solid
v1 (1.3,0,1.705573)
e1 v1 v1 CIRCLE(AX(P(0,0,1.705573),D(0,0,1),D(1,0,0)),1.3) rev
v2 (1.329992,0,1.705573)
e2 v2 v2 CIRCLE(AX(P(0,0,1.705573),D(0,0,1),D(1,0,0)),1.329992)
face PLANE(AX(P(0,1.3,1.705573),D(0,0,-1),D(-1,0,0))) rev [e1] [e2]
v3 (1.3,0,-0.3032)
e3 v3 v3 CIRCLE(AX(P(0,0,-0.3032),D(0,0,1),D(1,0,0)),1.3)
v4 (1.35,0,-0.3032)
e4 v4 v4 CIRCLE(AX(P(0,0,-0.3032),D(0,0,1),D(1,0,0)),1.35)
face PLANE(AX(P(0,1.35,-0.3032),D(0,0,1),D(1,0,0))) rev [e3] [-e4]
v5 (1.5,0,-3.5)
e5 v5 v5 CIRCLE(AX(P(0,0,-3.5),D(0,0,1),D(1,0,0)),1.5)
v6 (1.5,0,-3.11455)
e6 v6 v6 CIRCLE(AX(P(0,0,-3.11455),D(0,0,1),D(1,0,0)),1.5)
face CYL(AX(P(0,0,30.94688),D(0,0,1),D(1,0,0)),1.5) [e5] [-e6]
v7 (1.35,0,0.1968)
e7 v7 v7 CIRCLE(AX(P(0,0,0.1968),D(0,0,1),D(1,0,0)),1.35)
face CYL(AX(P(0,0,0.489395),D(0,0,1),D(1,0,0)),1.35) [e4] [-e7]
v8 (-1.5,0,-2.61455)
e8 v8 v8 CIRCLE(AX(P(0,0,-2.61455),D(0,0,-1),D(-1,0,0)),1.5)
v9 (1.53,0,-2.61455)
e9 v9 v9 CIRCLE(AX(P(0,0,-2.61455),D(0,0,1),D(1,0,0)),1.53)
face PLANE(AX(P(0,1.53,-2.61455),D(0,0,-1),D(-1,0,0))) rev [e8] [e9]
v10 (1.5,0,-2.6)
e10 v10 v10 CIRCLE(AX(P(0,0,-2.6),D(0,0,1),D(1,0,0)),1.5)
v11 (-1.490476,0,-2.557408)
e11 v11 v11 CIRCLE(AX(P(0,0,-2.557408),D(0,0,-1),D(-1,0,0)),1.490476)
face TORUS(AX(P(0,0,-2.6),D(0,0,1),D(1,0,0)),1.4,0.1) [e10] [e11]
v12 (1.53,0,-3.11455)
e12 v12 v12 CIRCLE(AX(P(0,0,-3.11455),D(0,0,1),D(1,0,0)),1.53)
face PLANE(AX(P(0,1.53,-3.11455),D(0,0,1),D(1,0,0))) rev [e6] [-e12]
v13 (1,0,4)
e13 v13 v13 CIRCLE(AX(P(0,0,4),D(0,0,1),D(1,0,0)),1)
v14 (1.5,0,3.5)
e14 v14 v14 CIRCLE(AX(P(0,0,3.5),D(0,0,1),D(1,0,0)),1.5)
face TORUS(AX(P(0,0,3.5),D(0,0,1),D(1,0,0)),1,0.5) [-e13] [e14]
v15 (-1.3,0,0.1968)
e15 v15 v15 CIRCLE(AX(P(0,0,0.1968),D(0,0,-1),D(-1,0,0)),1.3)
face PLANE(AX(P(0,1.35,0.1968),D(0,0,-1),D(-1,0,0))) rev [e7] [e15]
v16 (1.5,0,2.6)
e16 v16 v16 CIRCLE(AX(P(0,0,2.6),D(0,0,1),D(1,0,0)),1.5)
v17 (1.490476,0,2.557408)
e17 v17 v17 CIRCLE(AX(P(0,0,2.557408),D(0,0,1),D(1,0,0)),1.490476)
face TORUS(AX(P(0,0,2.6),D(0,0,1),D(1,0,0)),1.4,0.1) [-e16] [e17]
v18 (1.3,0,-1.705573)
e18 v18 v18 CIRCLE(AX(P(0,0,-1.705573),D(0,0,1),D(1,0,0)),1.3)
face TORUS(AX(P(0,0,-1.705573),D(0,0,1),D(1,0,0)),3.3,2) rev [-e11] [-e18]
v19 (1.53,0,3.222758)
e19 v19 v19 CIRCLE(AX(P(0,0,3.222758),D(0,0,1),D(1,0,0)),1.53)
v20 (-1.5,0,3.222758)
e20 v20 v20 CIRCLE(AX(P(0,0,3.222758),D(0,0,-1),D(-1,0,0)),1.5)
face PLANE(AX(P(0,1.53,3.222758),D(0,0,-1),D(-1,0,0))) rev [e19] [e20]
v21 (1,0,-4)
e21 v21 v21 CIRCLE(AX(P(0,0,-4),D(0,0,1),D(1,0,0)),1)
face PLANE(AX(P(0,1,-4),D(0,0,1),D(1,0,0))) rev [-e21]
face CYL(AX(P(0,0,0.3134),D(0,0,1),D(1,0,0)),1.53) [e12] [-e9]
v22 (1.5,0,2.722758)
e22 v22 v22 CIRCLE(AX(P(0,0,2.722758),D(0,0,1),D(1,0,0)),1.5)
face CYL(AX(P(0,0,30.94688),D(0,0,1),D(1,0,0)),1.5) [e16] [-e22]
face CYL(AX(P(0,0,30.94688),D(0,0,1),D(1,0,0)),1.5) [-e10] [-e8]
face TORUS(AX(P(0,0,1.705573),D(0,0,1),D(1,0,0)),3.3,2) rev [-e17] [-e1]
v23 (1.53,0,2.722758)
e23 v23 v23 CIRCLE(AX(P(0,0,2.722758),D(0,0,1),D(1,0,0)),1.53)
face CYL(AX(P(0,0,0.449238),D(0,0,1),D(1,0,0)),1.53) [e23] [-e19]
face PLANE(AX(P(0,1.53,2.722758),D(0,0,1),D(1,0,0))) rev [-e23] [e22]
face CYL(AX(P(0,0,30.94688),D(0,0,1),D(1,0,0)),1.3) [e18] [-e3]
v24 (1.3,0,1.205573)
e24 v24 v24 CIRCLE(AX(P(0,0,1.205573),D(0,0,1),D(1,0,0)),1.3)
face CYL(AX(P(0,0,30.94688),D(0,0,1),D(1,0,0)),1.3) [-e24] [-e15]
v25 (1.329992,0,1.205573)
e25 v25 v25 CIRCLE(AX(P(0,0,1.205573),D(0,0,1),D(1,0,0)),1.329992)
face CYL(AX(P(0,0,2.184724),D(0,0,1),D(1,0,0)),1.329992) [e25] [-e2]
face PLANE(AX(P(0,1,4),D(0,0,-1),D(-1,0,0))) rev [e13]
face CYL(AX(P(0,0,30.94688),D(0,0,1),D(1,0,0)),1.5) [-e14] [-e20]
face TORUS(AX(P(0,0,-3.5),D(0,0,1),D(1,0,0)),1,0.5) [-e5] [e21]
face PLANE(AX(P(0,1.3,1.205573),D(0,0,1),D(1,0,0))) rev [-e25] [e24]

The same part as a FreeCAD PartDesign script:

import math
import FreeCAD as App
import Part
import Sketcher

V = App.Vector
Q = App.Units.Quantity


def edges_at(feature, points):
    """Names of the edges that pass closest to the given points."""
    edges = feature.Shape.Edges
    near = lambda p: min(range(len(edges)), key=lambda i: edges[i].distToShape(Part.Vertex(*p))[0])
    return sorted({f"Edge{near(p) + 1}" for p in points})


def add_polygon(sketch, points):
    """Adds a closed chain of lines whose ends are joined by coincident constraints."""
    first, n = sketch.GeometryCount, len(points)
    for a, b in zip(points, points[1:] + points[:1]):
        sketch.addGeometry(Part.LineSegment(App.Vector(*a, 0), App.Vector(*b, 0)), False)
    for i in range(n):
        sketch.addConstraint(Sketcher.Constraint("Coincident", first + i, 2, first + (i + 1) % n, 1))

doc = App.newDocument("Part")
body = doc.addObject("PartDesign::Body", "Body")

# Sketch on YZ plane
sketch1 = body.newObject("Sketcher::SketchObject", "Sketch")
sketch1.AttachmentSupport = (doc.getObject("YZ_Plane"), [""])
sketch1.MapMode = "FlatFace"
sketch1.addGeometry(Part.LineSegment(V(1.5, -3.5, 0), V(1.5, -2.6, 0)), False)
sketch1.addGeometry(Part.ArcOfCircle(Part.Circle(V(1.4, -2.6, 0), V(0, 0, 1), 0.1), math.radians(0), math.radians(90)), False)
sketch1.addGeometry(Part.LineSegment(V(1.4, -2.5, 0), V(1.3, -2.5, 0)), False)
sketch1.addGeometry(Part.LineSegment(V(1.3, -2.5, 0), V(1.3, 2.5, 0)), False)
sketch1.addGeometry(Part.LineSegment(V(1.3, 2.5, 0), V(1.4, 2.5, 0)), False)
sketch1.addGeometry(Part.ArcOfCircle(Part.Circle(V(1.4, 2.6, 0), V(0, 0, 1), 0.1), math.radians(-90), math.radians(0)), False)
sketch1.addGeometry(Part.LineSegment(V(1.5, 2.6, 0), V(1.5, 3.5, 0)), False)
sketch1.addGeometry(Part.ArcOfCircle(Part.Circle(V(1, 3.5, 0), V(0, 0, 1), 0.5), math.radians(0), math.radians(90)), False)
sketch1.addGeometry(Part.LineSegment(V(1, 4, 0), V(0, 4, 0)), False)
sketch1.addGeometry(Part.LineSegment(V(0, 4, 0), V(0, -4, 0)), False)
sketch1.addGeometry(Part.LineSegment(V(0, -4, 0), V(1, -4, 0)), False)
sketch1.addGeometry(Part.ArcOfCircle(Part.Circle(V(1, -3.5, 0), V(0, 0, 1), 0.5), math.radians(-90), math.radians(0)), False)
sketch1.addConstraint(Sketcher.Constraint("Tangent", 0, 2, 1, 1))
sketch1.addConstraint(Sketcher.Constraint("Tangent", 1, 2, 2, 1))
sketch1.addConstraint(Sketcher.Constraint("Coincident", 2, 2, 3, 1))
sketch1.addConstraint(Sketcher.Constraint("Coincident", 3, 2, 4, 1))
sketch1.addConstraint(Sketcher.Constraint("Tangent", 4, 2, 5, 1))
sketch1.addConstraint(Sketcher.Constraint("Tangent", 5, 2, 6, 1))
sketch1.addConstraint(Sketcher.Constraint("Tangent", 6, 2, 7, 1))
sketch1.addConstraint(Sketcher.Constraint("Tangent", 7, 2, 8, 1))
sketch1.addConstraint(Sketcher.Constraint("Coincident", 8, 2, 9, 1))
sketch1.addConstraint(Sketcher.Constraint("Coincident", 9, 2, 10, 1))
sketch1.addConstraint(Sketcher.Constraint("Tangent", 10, 2, 11, 1))
sketch1.addConstraint(Sketcher.Constraint("Tangent", 11, 2, 0, 1))
sketch1.addConstraint(Sketcher.Constraint("Vertical", 0))
sketch1.addConstraint(Sketcher.Constraint("Horizontal", 2))
sketch1.addConstraint(Sketcher.Constraint("Vertical", 3))
sketch1.addConstraint(Sketcher.Constraint("Horizontal", 4))
sketch1.addConstraint(Sketcher.Constraint("Vertical", 6))
sketch1.addConstraint(Sketcher.Constraint("Horizontal", 8))
sketch1.addConstraint(Sketcher.Constraint("Vertical", 9))
sketch1.addConstraint(Sketcher.Constraint("Horizontal", 10))
sketch1.addConstraint(Sketcher.Constraint("Equal", 1, 5))
sketch1.addConstraint(Sketcher.Constraint("Equal", 7, 11))
sketch1.addConstraint(Sketcher.Constraint("Symmetric", 8, 2, 9, 2, -1, 1))
sketch1.addConstraint(Sketcher.Constraint("Symmetric", 1, 3, 5, 3, -1))
sketch1.addConstraint(Sketcher.Constraint("Radius", 1, Q("0.1 mm")))
sketch1.addConstraint(Sketcher.Constraint("Radius", 7, Q("0.5 mm")))
sketch1.addConstraint(Sketcher.Constraint("DistanceX", 8, 2, 8, 1, Q("1 mm")))
sketch1.addConstraint(Sketcher.Constraint("DistanceY", 3, 1, 3, 2, Q("5 mm")))
sketch1.addConstraint(Sketcher.Constraint("DistanceY", 9, 2, 9, 1, Q("8 mm")))
sketch1.addConstraint(Sketcher.Constraint("DistanceX", 2, 2, 2, 1, Q("0.1 mm")))
revolution = body.newObject("PartDesign::Revolution", "Revolution")
revolution.Profile = sketch1
revolution.ReferenceAxis = (sketch1, ["V_Axis"])
revolution.Angle = 360
doc.recompute()

fillet = body.newObject("PartDesign::Fillet", "Fillet")
fillet.Base = (revolution, edges_at(revolution, [(0, -1.3, -2.5), (0, -1.3, 2.5)]))
fillet.Radius = 2

# Sketch on YZ plane
sketch2 = body.newObject("Sketcher::SketchObject", "Sketch001")
sketch2.AttachmentSupport = (doc.getObject("YZ_Plane"), [""])
sketch2.MapMode = "FlatFace"
add_polygon(sketch2, [(1.33, 1.706), (1.3, 1.706), (1.3, 1.206), (1.33, 1.206)])  # lines 0-3
sketch2.addConstraint(Sketcher.Constraint("Horizontal", 0))
sketch2.addConstraint(Sketcher.Constraint("Vertical", 1))
sketch2.addConstraint(Sketcher.Constraint("Horizontal", 2))
sketch2.addConstraint(Sketcher.Constraint("Vertical", 3))
sketch2.addConstraint(Sketcher.Constraint("DistanceY", 1, 2, 1, 1, Q("0.5 mm")))
sketch2.addConstraint(Sketcher.Constraint("DistanceX", -1, 1, 0, 2, Q("1.3 mm")))
sketch2.addConstraint(Sketcher.Constraint("DistanceX", 0, 2, 0, 1, Q("0.029992 mm")))
sketch2.addConstraint(Sketcher.Constraint("DistanceY", -1, 1, 0, 2, Q("1.705573 mm")))
revolution2 = body.newObject("PartDesign::Revolution", "Revolution001")
revolution2.Profile = sketch2
revolution2.ReferenceAxis = (sketch2, ["V_Axis"])
revolution2.Angle = 360

# Sketch on YZ plane
sketch3 = body.newObject("Sketcher::SketchObject", "Sketch002")
sketch3.AttachmentSupport = (doc.getObject("YZ_Plane"), [""])
sketch3.MapMode = "FlatFace"
add_polygon(sketch3, [(1.35, 0.2), (1.3, 0.2), (1.3, -0.3), (1.35, -0.3)])  # lines 0-3
sketch3.addConstraint(Sketcher.Constraint("Horizontal", 0))
sketch3.addConstraint(Sketcher.Constraint("Vertical", 1))
sketch3.addConstraint(Sketcher.Constraint("Horizontal", 2))
sketch3.addConstraint(Sketcher.Constraint("Vertical", 3))
sketch3.addConstraint(Sketcher.Constraint("DistanceY", 1, 2, 1, 1, Q("0.5 mm")))
sketch3.addConstraint(Sketcher.Constraint("DistanceX", 0, 2, 0, 1, Q("0.05 mm")))
sketch3.addConstraint(Sketcher.Constraint("DistanceX", -1, 1, 0, 2, Q("1.3 mm")))
sketch3.addConstraint(Sketcher.Constraint("DistanceY", -1, 1, 0, 2, Q("0.1968 mm")))
revolution3 = body.newObject("PartDesign::Revolution", "Revolution002")
revolution3.Profile = sketch3
revolution3.ReferenceAxis = (sketch3, ["V_Axis"])
revolution3.Angle = 360

# Sketch on YZ plane
sketch4 = body.newObject("Sketcher::SketchObject", "Sketch003")
sketch4.AttachmentSupport = (doc.getObject("YZ_Plane"), [""])
sketch4.MapMode = "FlatFace"
add_polygon(sketch4, [(1.53, 3.223), (1.5, 3.223), (1.5, 2.723), (1.53, 2.723)])  # lines 0-3
sketch4.addConstraint(Sketcher.Constraint("Horizontal", 0))
sketch4.addConstraint(Sketcher.Constraint("Vertical", 1))
sketch4.addConstraint(Sketcher.Constraint("Horizontal", 2))
sketch4.addConstraint(Sketcher.Constraint("Vertical", 3))
sketch4.addConstraint(Sketcher.Constraint("DistanceY", 1, 2, 1, 1, Q("0.5 mm")))
sketch4.addConstraint(Sketcher.Constraint("DistanceX", 0, 2, 0, 1, Q("0.03 mm")))
sketch4.addConstraint(Sketcher.Constraint("DistanceX", -1, 1, 0, 2, Q("1.5 mm")))
sketch4.addConstraint(Sketcher.Constraint("DistanceY", -1, 1, 0, 2, Q("3.222758 mm")))
revolution4 = body.newObject("PartDesign::Revolution", "Revolution003")
revolution4.Profile = sketch4
revolution4.ReferenceAxis = (sketch4, ["V_Axis"])
revolution4.Angle = 360

# Sketch on YZ plane
sketch5 = body.newObject("Sketcher::SketchObject", "Sketch004")
sketch5.AttachmentSupport = (doc.getObject("YZ_Plane"), [""])
sketch5.MapMode = "FlatFace"
add_polygon(sketch5, [(1.53, -2.615), (1.5, -2.615), (1.5, -3.115), (1.53, -3.115)])  # lines 0-3
sketch5.addConstraint(Sketcher.Constraint("Horizontal", 0))
sketch5.addConstraint(Sketcher.Constraint("Vertical", 1))
sketch5.addConstraint(Sketcher.Constraint("Horizontal", 2))
sketch5.addConstraint(Sketcher.Constraint("Vertical", 3))
sketch5.addConstraint(Sketcher.Constraint("DistanceY", 1, 2, 1, 1, Q("0.5 mm")))
sketch5.addConstraint(Sketcher.Constraint("DistanceX", 0, 2, 0, 1, Q("0.03 mm")))
sketch5.addConstraint(Sketcher.Constraint("DistanceX", -1, 1, 0, 2, Q("1.5 mm")))
sketch5.addConstraint(Sketcher.Constraint("DistanceY", 0, 2, -1, 1, Q("2.61455 mm")))
revolution5 = body.newObject("PartDesign::Revolution", "Revolution004")
revolution5.Profile = sketch5
revolution5.ReferenceAxis = (sketch5, ["V_Axis"])
revolution5.Angle = 360

doc.recompute()
